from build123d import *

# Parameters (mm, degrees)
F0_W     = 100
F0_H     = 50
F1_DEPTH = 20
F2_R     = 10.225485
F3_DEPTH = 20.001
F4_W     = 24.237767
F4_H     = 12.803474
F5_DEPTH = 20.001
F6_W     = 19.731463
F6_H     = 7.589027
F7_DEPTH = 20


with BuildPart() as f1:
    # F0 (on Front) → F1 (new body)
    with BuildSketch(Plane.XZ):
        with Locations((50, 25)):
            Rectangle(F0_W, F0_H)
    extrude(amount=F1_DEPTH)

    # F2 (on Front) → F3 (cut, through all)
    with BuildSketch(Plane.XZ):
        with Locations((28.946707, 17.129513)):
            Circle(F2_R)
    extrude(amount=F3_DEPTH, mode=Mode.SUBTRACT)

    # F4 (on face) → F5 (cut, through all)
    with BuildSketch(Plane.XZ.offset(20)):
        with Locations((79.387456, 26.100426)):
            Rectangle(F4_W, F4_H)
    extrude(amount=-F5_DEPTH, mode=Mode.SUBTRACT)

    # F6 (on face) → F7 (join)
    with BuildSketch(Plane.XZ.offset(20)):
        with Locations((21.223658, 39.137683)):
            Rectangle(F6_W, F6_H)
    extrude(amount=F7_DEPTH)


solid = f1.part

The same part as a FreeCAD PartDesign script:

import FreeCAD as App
import Part
import Sketcher
from FreeCAD import Vector

doc = App.newDocument("Part")
body = doc.addObject("PartDesign::Body", "Body")

# Sketch on XZ plane
sketch1 = doc.addObject("Sketcher::SketchObject", "Sketch")
body.addObject(sketch1)
sketch1.AttachmentSupport = (doc.XZ_Plane, [""])
sketch1.MapMode = "FlatFace"
sketch1.addGeometry([
    Part.LineSegment(Vector(0, 50, 0), Vector(0, 0, 0)),
    Part.LineSegment(Vector(0, 0, 0), Vector(100, 0, 0)),
    Part.LineSegment(Vector(100, 0, 0), Vector(100, 50, 0)),
    Part.LineSegment(Vector(100, 50, 0), Vector(0, 50, 0)),
], False)
sketch1.addConstraint([
    Sketcher.Constraint("Coincident", 0, 2, 1, 1),
    Sketcher.Constraint("Coincident", 1, 2, 2, 1),
    Sketcher.Constraint("Coincident", 2, 2, 3, 1),
    Sketcher.Constraint("Coincident", 3, 2, 0, 1),
    Sketcher.Constraint("Vertical", 0),
    Sketcher.Constraint("Horizontal", 1),
    Sketcher.Constraint("Vertical", 2),
    Sketcher.Constraint("Horizontal", 3),
    Sketcher.Constraint("Coincident", 0, 2, -1, 1),
    Sketcher.Constraint("DistanceX", 1, 1, 1, 2, 100.0),
    Sketcher.Constraint("DistanceY", 0, 2, 0, 1, 50.0),
])
pad1 = doc.addObject("PartDesign::Pad", "Pad")
body.addObject(pad1)
pad1.Profile = sketch1
pad1.Length = 20

# Sketch on XZ plane
sketch2 = doc.addObject("Sketcher::SketchObject", "Sketch001")
body.addObject(sketch2)
sketch2.AttachmentSupport = (doc.XZ_Plane, [""])
sketch2.MapMode = "FlatFace"
sketch2.addGeometry(Part.Circle(Vector(29, 17, 0), Vector(0, 0, 1), 10), False)
sketch2.addConstraint([
    Sketcher.Constraint("Diameter", 0, 20.45097),
    Sketcher.Constraint("DistanceX", -1, 1, 0, 3, 28.946707),
    Sketcher.Constraint("DistanceY", -1, 1, 0, 3, 17.129513),
])
pocket1 = doc.addObject("PartDesign::Pocket", "Pocket")
body.addObject(pocket1)
pocket1.Profile = sketch2
pocket1.Type = "ThroughAll"
pocket1.Reversed = True

# Sketch on XZ plane
sketch3 = doc.addObject("Sketcher::SketchObject", "Sketch002")
body.addObject(sketch3)
sketch3.AttachmentSupport = (doc.XZ_Plane, [""])
sketch3.MapMode = "FlatFace"
sketch3.AttachmentOffset = App.Placement(Vector(0, 0, 20), App.Rotation())
sketch3.addGeometry([
    Part.LineSegment(Vector(67, 33, 0), Vector(67, 20, 0)),
    Part.LineSegment(Vector(67, 20, 0), Vector(92, 20, 0)),
    Part.LineSegment(Vector(92, 20, 0), Vector(92, 33, 0)),
    Part.LineSegment(Vector(92, 33, 0), Vector(67, 33, 0)),
], False)
sketch3.addConstraint([
    Sketcher.Constraint("Coincident", 0, 2, 1, 1),
    Sketcher.Constraint("Coincident", 1, 2, 2, 1),
    Sketcher.Constraint("Coincident", 2, 2, 3, 1),
    Sketcher.Constraint("Coincident", 3, 2, 0, 1),
    Sketcher.Constraint("Vertical", 0),
    Sketcher.Constraint("Horizontal", 1),
    Sketcher.Constraint("Vertical", 2),
    Sketcher.Constraint("Horizontal", 3),
    Sketcher.Constraint("DistanceX", 1, 1, 1, 2, 24.237767),
    Sketcher.Constraint("DistanceY", 0, 2, 0, 1, 12.803474),
    Sketcher.Constraint("DistanceY", -1, 1, 0, 2, 19.698689),
    Sketcher.Constraint("DistanceX", -1, 1, 1, 2, 91.506339),
])
pocket2 = doc.addObject("PartDesign::Pocket", "Pocket001")
body.addObject(pocket2)
pocket2.Profile = sketch3
pocket2.Type = "ThroughAll"

# Sketch on XZ plane
sketch4 = doc.addObject("Sketcher::SketchObject", "Sketch003")
body.addObject(sketch4)
sketch4.AttachmentSupport = (doc.XZ_Plane, [""])
sketch4.MapMode = "FlatFace"
sketch4.AttachmentOffset = App.Placement(Vector(0, 0, 20), App.Rotation())
sketch4.addGeometry([
    Part.LineSegment(Vector(11, 43, 0), Vector(11, 35, 0)),
    Part.LineSegment(Vector(11, 35, 0), Vector(31, 35, 0)),
    Part.LineSegment(Vector(31, 35, 0), Vector(31, 43, 0)),
    Part.LineSegment(Vector(31, 43, 0), Vector(11, 43, 0)),
], False)
sketch4.addConstraint([
    Sketcher.Constraint("Coincident", 0, 2, 1, 1),
    Sketcher.Constraint("Coincident", 1, 2, 2, 1),
    Sketcher.Constraint("Coincident", 2, 2, 3, 1),
    Sketcher.Constraint("Coincident", 3, 2, 0, 1),
    Sketcher.Constraint("Vertical", 0),
    Sketcher.Constraint("Horizontal", 1),
    Sketcher.Constraint("Vertical", 2),
    Sketcher.Constraint("Horizontal", 3),
    Sketcher.Constraint("DistanceX", 1, 1, 1, 2, 19.731463),
    Sketcher.Constraint("DistanceY", 0, 2, 0, 1, 7.589027),
    Sketcher.Constraint("DistanceY", -1, 1, 0, 2, 35.34317),
    Sketcher.Constraint("DistanceX", -1, 1, 1, 2, 31.089389),
])
pad2 = doc.addObject("PartDesign::Pad", "Pad001")
body.addObject(pad2)
pad2.Profile = sketch4
pad2.Length = 20

doc.recompute()
